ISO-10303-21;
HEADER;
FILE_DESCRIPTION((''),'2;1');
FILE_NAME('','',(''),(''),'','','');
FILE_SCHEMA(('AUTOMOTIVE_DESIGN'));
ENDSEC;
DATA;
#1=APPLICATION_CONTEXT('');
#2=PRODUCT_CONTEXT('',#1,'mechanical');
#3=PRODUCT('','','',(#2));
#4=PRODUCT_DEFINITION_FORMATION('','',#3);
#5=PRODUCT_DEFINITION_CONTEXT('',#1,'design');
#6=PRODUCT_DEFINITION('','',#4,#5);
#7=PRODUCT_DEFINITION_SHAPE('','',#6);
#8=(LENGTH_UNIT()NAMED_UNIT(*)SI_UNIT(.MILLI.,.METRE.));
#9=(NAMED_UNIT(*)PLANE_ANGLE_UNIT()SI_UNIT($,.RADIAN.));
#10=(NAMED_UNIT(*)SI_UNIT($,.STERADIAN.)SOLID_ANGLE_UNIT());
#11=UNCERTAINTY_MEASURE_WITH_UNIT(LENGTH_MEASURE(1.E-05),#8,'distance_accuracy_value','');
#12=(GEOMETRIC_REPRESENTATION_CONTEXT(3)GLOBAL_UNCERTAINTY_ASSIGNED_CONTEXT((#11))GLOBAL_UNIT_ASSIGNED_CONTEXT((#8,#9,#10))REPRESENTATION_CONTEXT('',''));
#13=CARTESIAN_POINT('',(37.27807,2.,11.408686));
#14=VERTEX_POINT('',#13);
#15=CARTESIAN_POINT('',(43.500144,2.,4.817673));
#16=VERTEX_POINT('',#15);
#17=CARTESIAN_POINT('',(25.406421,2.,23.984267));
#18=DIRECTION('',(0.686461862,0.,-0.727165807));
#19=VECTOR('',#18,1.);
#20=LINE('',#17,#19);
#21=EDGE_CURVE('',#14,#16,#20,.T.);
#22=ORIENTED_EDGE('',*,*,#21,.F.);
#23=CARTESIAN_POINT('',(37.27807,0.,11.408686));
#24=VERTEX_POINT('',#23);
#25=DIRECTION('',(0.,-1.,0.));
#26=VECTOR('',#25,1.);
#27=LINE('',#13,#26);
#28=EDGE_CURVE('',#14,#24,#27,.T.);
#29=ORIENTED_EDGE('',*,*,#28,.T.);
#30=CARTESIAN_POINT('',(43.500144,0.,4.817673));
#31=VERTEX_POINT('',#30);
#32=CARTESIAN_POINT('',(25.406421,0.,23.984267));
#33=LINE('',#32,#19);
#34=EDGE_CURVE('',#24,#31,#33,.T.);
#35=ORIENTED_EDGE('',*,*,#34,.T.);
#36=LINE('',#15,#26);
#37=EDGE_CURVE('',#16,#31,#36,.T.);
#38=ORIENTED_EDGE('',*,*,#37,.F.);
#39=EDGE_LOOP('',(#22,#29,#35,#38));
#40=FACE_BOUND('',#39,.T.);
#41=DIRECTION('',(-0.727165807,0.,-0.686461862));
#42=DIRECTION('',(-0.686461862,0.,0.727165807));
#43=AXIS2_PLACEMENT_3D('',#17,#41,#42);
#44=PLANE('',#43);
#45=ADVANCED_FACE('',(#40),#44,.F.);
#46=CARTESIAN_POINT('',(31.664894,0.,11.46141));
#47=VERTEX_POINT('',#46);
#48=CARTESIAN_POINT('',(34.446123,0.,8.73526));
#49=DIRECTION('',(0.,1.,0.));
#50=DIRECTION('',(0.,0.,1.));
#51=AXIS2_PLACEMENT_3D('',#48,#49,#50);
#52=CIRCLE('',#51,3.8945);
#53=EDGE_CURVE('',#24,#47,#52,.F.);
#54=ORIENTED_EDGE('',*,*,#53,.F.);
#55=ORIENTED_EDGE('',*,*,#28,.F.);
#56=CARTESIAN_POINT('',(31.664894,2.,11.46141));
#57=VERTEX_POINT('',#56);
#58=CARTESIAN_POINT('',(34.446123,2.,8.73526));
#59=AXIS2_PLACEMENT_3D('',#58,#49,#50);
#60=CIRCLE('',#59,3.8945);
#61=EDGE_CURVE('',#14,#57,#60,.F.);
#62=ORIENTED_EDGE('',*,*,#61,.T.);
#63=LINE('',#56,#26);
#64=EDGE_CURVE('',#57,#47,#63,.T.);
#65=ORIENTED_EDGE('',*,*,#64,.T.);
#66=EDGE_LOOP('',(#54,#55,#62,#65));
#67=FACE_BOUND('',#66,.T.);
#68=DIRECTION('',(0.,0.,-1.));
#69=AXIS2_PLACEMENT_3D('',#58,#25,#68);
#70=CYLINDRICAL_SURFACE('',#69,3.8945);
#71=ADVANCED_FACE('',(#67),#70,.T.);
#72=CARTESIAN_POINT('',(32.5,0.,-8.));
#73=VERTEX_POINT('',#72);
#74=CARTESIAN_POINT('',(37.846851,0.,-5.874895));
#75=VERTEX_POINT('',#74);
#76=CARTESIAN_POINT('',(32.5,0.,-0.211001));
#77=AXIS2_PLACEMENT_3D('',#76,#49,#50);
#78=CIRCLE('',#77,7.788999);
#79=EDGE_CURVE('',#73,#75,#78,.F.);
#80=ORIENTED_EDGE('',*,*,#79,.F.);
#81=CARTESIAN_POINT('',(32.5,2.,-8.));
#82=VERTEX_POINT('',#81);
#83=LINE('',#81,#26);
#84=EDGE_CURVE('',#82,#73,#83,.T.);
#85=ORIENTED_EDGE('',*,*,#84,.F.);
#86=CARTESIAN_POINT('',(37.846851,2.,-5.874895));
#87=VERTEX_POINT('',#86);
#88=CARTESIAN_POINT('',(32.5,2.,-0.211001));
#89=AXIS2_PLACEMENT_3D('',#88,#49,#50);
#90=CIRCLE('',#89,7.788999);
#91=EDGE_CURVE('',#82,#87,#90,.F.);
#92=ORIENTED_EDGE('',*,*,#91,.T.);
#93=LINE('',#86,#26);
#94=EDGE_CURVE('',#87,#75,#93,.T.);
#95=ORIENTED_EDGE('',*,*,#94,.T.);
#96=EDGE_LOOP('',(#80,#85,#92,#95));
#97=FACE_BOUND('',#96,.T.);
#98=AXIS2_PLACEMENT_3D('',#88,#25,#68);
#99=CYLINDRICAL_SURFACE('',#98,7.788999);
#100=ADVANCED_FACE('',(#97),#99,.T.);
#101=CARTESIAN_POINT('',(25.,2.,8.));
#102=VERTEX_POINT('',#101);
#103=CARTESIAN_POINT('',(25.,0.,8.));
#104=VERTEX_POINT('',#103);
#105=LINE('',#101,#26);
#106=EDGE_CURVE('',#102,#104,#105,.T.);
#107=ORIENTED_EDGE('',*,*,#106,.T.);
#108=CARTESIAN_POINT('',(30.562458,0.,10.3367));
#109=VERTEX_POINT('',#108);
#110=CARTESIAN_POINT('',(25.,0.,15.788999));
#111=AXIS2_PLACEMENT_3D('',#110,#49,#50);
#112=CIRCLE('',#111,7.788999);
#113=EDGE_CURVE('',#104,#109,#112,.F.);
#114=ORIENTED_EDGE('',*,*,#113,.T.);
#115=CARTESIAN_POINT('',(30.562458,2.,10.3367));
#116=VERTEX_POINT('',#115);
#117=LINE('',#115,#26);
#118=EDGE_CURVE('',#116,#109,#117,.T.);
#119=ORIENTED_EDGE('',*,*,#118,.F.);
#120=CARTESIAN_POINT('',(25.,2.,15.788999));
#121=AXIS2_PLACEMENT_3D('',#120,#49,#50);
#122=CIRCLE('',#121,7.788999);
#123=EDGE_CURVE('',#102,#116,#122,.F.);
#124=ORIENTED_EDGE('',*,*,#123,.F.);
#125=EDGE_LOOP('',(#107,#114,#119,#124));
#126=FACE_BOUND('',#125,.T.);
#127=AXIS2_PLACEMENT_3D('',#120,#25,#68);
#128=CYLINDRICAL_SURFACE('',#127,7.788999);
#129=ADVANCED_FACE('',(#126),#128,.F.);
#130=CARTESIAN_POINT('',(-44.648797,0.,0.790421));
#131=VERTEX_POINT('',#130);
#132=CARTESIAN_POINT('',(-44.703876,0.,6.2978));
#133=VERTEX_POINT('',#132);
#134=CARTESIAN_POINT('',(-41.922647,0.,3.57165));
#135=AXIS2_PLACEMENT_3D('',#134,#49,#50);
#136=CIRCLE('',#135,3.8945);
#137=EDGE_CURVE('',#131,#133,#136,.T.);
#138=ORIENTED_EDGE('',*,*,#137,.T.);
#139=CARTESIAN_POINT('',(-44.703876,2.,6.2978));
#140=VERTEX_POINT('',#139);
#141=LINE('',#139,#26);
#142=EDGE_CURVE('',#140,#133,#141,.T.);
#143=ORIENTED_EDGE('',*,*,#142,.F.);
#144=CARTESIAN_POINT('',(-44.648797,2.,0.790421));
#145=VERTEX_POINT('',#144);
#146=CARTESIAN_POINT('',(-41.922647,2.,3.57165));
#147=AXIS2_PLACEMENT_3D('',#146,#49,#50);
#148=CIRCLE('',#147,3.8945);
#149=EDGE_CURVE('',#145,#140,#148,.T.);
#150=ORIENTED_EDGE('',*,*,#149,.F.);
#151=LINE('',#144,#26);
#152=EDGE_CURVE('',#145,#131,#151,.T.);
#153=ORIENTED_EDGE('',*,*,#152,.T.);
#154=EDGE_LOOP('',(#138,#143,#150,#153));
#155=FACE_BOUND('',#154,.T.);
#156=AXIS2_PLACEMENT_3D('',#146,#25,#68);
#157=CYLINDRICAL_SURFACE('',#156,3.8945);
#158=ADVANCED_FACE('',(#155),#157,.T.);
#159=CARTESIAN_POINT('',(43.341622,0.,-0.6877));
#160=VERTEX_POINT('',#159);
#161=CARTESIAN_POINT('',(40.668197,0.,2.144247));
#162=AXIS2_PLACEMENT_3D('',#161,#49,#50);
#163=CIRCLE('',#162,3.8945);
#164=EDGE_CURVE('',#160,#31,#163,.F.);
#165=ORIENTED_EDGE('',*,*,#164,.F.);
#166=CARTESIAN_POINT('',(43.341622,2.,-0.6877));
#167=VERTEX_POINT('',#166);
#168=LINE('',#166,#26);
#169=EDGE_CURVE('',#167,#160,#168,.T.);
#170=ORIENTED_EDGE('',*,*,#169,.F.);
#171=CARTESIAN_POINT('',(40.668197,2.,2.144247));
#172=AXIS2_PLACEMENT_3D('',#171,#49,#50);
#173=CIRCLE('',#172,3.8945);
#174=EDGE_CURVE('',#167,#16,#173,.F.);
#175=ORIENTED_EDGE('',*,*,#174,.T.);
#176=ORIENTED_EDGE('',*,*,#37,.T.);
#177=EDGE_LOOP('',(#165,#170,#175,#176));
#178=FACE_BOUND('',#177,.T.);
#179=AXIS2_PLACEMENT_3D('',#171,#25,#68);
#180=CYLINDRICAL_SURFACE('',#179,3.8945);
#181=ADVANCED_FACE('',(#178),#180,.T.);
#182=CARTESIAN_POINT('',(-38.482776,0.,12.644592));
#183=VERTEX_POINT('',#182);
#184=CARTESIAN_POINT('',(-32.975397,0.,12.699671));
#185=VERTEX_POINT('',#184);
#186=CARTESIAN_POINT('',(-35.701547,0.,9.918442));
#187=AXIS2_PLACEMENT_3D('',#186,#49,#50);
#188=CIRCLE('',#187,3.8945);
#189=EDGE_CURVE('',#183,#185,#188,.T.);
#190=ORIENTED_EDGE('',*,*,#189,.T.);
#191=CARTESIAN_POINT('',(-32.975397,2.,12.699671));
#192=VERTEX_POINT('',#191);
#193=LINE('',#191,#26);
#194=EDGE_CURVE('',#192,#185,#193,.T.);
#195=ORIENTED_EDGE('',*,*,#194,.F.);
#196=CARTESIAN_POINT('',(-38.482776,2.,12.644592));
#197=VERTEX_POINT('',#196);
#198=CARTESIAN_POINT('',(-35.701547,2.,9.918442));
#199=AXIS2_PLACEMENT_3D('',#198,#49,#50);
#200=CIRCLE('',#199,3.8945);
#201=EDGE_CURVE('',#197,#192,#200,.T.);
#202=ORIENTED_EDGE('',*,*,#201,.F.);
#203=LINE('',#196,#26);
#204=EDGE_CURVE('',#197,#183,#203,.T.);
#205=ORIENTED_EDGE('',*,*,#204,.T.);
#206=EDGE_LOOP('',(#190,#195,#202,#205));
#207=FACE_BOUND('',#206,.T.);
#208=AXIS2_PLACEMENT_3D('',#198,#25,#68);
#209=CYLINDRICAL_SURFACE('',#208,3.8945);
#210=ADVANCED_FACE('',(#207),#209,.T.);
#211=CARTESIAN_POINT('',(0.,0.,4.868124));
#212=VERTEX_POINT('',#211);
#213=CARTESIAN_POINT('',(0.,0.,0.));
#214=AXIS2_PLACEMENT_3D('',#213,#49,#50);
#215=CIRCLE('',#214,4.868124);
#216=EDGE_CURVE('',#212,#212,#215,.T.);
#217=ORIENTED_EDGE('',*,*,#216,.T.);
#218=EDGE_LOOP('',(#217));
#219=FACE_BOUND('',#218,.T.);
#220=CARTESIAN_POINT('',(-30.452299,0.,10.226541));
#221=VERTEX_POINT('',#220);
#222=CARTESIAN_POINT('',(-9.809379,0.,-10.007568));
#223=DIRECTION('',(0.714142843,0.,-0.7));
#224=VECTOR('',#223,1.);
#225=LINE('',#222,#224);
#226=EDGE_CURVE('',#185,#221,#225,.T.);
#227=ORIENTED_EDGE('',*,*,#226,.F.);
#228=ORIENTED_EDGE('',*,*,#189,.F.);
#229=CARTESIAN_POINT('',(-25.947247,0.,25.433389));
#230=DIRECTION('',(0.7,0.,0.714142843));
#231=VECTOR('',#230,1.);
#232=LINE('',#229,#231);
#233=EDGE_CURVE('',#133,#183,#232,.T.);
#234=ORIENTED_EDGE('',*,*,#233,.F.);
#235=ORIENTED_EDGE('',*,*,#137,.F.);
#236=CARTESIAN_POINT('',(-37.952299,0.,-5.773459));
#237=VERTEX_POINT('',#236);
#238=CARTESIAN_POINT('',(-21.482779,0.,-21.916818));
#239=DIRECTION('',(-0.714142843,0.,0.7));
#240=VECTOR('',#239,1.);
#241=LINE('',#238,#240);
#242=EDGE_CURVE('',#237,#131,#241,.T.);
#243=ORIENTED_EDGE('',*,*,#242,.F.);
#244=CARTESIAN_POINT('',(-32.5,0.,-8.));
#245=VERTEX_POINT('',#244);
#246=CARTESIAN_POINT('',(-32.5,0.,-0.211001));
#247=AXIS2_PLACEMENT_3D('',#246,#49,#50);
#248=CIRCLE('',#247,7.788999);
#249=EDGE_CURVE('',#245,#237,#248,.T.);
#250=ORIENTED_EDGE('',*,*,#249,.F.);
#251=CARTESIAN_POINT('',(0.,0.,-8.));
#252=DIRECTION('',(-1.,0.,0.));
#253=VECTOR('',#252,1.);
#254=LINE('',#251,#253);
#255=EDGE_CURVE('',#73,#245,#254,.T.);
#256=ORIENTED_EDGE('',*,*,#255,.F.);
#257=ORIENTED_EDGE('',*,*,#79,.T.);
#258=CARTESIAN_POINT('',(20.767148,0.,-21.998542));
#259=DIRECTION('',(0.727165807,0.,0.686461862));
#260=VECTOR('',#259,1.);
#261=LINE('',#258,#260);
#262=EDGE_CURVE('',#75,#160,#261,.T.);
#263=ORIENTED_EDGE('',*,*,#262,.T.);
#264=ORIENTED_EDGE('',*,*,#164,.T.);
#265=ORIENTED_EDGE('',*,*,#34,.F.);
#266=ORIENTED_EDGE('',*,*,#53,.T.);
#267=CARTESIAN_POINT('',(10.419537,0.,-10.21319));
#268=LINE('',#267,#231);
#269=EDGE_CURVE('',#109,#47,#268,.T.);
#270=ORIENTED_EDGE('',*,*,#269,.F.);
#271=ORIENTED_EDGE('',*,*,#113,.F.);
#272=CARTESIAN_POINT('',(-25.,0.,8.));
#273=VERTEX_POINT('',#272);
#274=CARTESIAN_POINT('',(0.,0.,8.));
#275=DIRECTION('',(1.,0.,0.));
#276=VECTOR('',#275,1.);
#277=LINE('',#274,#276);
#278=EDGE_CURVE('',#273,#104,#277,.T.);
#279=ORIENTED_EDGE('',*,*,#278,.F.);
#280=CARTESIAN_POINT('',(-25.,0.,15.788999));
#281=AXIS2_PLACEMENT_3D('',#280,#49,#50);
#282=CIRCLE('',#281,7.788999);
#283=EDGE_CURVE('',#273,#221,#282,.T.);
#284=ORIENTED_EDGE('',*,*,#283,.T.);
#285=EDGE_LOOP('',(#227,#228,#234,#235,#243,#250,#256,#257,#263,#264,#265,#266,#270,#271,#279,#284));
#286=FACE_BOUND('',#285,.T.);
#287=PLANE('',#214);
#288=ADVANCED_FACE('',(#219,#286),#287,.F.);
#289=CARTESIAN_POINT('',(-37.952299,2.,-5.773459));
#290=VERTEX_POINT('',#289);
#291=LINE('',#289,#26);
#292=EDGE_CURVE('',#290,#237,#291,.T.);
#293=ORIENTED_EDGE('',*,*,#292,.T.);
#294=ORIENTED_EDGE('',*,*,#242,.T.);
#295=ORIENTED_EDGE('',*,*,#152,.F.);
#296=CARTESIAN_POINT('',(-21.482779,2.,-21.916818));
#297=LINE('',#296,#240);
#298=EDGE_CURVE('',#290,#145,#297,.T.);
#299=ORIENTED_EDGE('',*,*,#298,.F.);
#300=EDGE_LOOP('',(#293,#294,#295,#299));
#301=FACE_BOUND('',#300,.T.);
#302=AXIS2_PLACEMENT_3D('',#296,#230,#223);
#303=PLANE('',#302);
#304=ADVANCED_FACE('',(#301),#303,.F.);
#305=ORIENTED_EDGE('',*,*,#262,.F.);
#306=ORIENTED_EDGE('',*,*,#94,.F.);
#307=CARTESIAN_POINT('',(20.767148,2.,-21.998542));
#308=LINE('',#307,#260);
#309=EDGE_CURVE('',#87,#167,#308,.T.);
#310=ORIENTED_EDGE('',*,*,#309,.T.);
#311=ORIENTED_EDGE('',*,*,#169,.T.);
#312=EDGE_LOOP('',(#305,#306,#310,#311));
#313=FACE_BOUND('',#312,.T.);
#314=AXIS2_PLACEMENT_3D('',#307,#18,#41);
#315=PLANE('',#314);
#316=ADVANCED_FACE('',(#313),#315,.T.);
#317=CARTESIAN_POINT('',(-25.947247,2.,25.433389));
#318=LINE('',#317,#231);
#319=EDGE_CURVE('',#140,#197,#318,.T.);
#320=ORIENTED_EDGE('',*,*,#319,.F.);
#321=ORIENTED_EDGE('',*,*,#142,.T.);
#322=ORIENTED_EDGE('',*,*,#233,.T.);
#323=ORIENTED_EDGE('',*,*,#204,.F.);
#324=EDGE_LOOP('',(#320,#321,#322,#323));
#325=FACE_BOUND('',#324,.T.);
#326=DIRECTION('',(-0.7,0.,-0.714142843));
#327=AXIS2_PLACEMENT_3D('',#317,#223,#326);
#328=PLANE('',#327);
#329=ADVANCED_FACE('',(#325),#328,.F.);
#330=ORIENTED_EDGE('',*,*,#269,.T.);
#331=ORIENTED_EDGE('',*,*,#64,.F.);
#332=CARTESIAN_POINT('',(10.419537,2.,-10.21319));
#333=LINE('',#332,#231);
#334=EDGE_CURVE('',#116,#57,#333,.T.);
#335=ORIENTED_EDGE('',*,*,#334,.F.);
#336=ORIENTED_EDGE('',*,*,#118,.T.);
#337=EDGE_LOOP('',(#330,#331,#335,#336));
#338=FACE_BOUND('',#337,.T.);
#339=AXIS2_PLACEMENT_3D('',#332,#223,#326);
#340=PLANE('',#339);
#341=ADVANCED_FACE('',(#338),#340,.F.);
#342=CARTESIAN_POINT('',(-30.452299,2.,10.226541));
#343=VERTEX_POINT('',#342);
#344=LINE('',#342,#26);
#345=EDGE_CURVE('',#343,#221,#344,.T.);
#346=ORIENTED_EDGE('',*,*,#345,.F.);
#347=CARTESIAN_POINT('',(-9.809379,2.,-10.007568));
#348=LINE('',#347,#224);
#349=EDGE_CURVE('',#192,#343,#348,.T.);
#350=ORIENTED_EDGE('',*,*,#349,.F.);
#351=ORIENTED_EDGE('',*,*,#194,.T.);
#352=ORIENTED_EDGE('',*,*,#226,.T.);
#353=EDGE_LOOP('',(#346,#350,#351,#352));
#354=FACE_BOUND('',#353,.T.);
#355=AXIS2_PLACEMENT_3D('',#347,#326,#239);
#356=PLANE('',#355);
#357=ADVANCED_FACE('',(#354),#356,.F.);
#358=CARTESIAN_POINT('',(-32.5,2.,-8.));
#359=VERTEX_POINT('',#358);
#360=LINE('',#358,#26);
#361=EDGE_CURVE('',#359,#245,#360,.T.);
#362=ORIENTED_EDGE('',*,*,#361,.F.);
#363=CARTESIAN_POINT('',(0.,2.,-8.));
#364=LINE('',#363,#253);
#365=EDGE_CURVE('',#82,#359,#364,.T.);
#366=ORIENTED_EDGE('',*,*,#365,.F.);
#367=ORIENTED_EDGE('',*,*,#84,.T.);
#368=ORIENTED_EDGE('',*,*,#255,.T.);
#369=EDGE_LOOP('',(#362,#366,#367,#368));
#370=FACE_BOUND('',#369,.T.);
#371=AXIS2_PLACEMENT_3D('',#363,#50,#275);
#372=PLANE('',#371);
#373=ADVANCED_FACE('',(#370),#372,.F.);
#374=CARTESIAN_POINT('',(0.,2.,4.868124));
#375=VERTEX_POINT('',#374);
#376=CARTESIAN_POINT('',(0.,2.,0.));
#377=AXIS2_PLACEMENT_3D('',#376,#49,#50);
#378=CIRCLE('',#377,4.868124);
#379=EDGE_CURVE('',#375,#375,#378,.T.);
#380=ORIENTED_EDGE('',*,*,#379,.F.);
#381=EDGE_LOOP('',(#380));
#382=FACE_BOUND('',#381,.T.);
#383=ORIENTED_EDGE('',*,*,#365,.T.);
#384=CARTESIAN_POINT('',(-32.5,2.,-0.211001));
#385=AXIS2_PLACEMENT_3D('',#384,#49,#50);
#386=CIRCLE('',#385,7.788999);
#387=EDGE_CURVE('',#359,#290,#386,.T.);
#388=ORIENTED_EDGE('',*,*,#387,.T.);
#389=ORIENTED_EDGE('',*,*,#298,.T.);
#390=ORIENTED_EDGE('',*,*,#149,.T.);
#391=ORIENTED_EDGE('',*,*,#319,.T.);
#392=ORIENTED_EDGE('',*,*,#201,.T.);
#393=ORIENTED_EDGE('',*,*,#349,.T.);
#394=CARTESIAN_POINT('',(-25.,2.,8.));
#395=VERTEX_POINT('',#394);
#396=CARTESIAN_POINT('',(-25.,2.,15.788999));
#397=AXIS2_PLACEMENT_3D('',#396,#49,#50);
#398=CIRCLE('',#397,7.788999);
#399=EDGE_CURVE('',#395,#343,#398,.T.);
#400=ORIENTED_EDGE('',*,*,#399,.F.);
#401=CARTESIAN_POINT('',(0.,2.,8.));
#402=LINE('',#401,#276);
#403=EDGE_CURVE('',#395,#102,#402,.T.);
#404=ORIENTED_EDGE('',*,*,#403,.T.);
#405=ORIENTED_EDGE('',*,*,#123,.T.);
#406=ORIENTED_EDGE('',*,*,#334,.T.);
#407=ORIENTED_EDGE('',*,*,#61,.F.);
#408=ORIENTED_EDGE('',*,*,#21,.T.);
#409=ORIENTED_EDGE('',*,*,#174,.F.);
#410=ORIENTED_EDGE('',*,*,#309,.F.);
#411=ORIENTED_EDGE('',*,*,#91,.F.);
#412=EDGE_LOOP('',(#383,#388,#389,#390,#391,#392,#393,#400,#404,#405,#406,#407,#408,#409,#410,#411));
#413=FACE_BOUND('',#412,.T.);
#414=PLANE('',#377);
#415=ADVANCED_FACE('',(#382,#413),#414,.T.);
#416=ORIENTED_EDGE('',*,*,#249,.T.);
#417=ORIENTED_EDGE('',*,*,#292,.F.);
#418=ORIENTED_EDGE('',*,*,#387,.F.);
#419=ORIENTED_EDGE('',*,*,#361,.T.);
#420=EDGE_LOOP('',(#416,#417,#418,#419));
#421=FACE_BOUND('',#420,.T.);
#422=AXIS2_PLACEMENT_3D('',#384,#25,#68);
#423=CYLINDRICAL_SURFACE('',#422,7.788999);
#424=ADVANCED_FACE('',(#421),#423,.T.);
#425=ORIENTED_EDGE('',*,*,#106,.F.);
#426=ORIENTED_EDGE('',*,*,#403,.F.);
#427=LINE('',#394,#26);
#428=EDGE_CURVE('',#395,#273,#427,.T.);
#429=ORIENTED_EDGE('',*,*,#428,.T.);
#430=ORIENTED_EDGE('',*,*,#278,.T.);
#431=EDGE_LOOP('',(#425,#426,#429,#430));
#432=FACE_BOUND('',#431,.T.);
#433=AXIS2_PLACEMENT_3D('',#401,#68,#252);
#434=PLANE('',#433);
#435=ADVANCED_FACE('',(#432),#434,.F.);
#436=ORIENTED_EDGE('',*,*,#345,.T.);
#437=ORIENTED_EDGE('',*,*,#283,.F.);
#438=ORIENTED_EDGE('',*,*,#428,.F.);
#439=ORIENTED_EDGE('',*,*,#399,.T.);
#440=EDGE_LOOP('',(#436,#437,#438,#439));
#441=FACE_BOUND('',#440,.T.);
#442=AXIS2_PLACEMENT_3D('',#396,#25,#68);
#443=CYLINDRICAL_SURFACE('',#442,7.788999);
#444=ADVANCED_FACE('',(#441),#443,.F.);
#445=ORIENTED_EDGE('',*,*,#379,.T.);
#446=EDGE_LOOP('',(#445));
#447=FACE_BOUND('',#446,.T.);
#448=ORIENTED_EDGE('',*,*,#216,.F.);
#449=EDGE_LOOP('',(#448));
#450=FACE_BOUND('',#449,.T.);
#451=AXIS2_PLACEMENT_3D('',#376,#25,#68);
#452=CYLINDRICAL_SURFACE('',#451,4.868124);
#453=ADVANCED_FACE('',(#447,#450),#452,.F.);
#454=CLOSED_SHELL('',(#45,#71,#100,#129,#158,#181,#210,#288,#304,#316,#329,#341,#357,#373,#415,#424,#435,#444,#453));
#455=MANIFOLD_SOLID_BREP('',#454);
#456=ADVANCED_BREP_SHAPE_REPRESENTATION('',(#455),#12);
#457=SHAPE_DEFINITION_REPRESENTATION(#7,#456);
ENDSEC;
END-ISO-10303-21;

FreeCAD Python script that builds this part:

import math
import FreeCAD as App
import Part
import Sketcher

V = App.Vector

doc = App.newDocument("Part")
body = doc.addObject("PartDesign::Body", "Body")

sketch1 = doc.addObject("Sketcher::SketchObject", "Sketch")
body.addObject(sketch1)
sketch1.AttachmentSupport = (doc.XZ_Plane, [""])
sketch1.MapMode = "FlatFace"
sketch1.addGeometry(Part.ArcOfCircle(Part.Circle(V(34.4, 8.7, 0), V(0, 0, 1), 3.9), math.radians(43), math.radians(136)), False)
sketch1.addGeometry(Part.LineSegment(V(37.3, 11.4, 0), V(43.5, 4.8, 0)), False)
sketch1.addGeometry(Part.ArcOfCircle(Part.Circle(V(40.7, 2.1, 0), V(0, 0, 1), 3.9), math.radians(-47), math.radians(43)), False)
sketch1.addGeometry(Part.LineSegment(V(43.3, -0.7, 0), V(37.8, -5.9, 0)), False)
sketch1.addGeometry(Part.ArcOfCircle(Part.Circle(V(32.5, -0.2, 0), V(0, 0, 1), 7.8), math.radians(-90), math.radians(-47)), False)
sketch1.addGeometry(Part.LineSegment(V(32.5, -8, 0), V(-32.5, -8, 0)), False)
sketch1.addGeometry(Part.ArcOfCircle(Part.Circle(V(-32.5, -0.2, 0), V(0, 0, 1), 7.8), math.radians(-134), math.radians(-90)), False)
sketch1.addGeometry(Part.LineSegment(V(-38, -5.8, 0), V(-44.6, 0.8, 0)), False)
sketch1.addGeometry(Part.ArcOfCircle(Part.Circle(V(-41.9, 3.6, 0), V(0, 0, 1), 3.9), math.radians(136), math.radians(226)), False)
sketch1.addGeometry(Part.LineSegment(V(-44.7, 6.3, 0), V(-38.5, 12.6, 0)), False)
sketch1.addGeometry(Part.ArcOfCircle(Part.Circle(V(-35.7, 9.9, 0), V(0, 0, 1), 3.9), math.radians(46), math.radians(136)), False)
sketch1.addGeometry(Part.LineSegment(V(-33, 12.7, 0), V(-30.5, 10.2, 0)), False)
sketch1.addGeometry(Part.ArcOfCircle(Part.Circle(V(-25, 15.8, 0), V(0, 0, 1), 7.8), math.radians(-134), math.radians(-90)), False)
sketch1.addGeometry(Part.LineSegment(V(-25, 8, 0), V(25, 8, 0)), False)
sketch1.addGeometry(Part.ArcOfCircle(Part.Circle(V(25, 15.8, 0), V(0, 0, 1), 7.8), math.radians(-90), math.radians(-44)), False)
sketch1.addGeometry(Part.LineSegment(V(30.6, 10.3, 0), V(31.7, 11.5, 0)), False)
sketch1.addGeometry(Part.Circle(V(0, 0, 0), V(0, 0, 1), 4.9), False)
sketch1.addConstraint(Sketcher.Constraint("Tangent", 0, 1, 1, 1))
sketch1.addConstraint(Sketcher.Constraint("Tangent", 1, 2, 2, 2))
sketch1.addConstraint(Sketcher.Constraint("Tangent", 2, 1, 3, 1))
sketch1.addConstraint(Sketcher.Constraint("Tangent", 3, 2, 4, 2))
sketch1.addConstraint(Sketcher.Constraint("Tangent", 4, 1, 5, 1))
sketch1.addConstraint(Sketcher.Constraint("Tangent", 5, 2, 6, 2))
sketch1.addConstraint(Sketcher.Constraint("Tangent", 6, 1, 7, 1))
sketch1.addConstraint(Sketcher.Constraint("Tangent", 7, 2, 8, 2))
sketch1.addConstraint(Sketcher.Constraint("Tangent", 8, 1, 9, 1))
sketch1.addConstraint(Sketcher.Constraint("Tangent", 9, 2, 10, 2))
sketch1.addConstraint(Sketcher.Constraint("Tangent", 10, 1, 11, 1))
sketch1.addConstraint(Sketcher.Constraint("Tangent", 11, 2, 12, 1))
sketch1.addConstraint(Sketcher.Constraint("Tangent", 12, 2, 13, 1))
sketch1.addConstraint(Sketcher.Constraint("Tangent", 13, 2, 14, 1))
sketch1.addConstraint(Sketcher.Constraint("Tangent", 14, 2, 15, 1))
sketch1.addConstraint(Sketcher.Constraint("Tangent", 15, 2, 0, 2))
sketch1.addConstraint(Sketcher.Constraint("Horizontal", 5))
sketch1.addConstraint(Sketcher.Constraint("Horizontal", 13))
sketch1.addConstraint(Sketcher.Constraint("Coincident", 16, 3, -1, 1))
sketch1.addConstraint(Sketcher.Constraint("Equal", 0, 2))
sketch1.addConstraint(Sketcher.Constraint("Equal", 4, 6))
sketch1.addConstraint(Sketcher.Constraint("Equal", 2, 8))
sketch1.addConstraint(Sketcher.Constraint("Equal", 8, 10))
sketch1.addConstraint(Sketcher.Constraint("Equal", 6, 12))
sketch1.addConstraint(Sketcher.Constraint("Equal", 12, 14))
sketch1.addConstraint(Sketcher.Constraint("Perpendicular", 1, 3))
sketch1.addConstraint(Sketcher.Constraint("Perpendicular", 7, 9))
sketch1.addConstraint(Sketcher.Constraint("Perpendicular", 9, 11))
sketch1.addConstraint(Sketcher.Constraint("Perpendicular", 11, 15))
sketch1.addConstraint(Sketcher.Constraint("DistanceX", 5, 2, 5, 1, 65.0))
sketch1.addConstraint(Sketcher.Constraint("DistanceX", 13, 1, 13, 2, 50.0))
sketch1.addConstraint(Sketcher.Constraint("DistanceX", 12, 3, -1, 1, 25.0))
sketch1.addConstraint(Sketcher.Constraint("DistanceY", 4, 1, -1, 1, 8.0))
sketch1.addConstraint(Sketcher.Constraint("DistanceY", -1, 1, 12, 2, 8.0))
sketch1.addConstraint(Sketcher.Constraint("Radius", 4, 7.788999))
sketch1.addConstraint(Sketcher.Constraint("DistanceX", -1, 1, 4, 3, 32.5))
sketch1.addConstraint(Sketcher.Constraint("Radius", 0, 3.8945))
sketch1.addConstraint(Sketcher.Constraint("Diameter", 16, 9.736249))
sketch1.addConstraint(Sketcher.Constraint("DistanceY", 2, 1, -1, 1, 0.6877))
sketch1.addConstraint(Sketcher.Constraint("DistanceX", 6, 1, -1, 1, 37.952299))
sketch1.addConstraint(Sketcher.Constraint("DistanceY", -1, 1, 8, 1, 6.2978))
sketch1.addConstraint(Sketcher.Constraint("DistanceX", 0, 3, 2, 1, 8.895499))
pad1 = doc.addObject("PartDesign::Pad", "Pad")
body.addObject(pad1)
pad1.Profile = sketch1
pad1.Length = 2
pad1.Reversed = True

doc.recompute()
